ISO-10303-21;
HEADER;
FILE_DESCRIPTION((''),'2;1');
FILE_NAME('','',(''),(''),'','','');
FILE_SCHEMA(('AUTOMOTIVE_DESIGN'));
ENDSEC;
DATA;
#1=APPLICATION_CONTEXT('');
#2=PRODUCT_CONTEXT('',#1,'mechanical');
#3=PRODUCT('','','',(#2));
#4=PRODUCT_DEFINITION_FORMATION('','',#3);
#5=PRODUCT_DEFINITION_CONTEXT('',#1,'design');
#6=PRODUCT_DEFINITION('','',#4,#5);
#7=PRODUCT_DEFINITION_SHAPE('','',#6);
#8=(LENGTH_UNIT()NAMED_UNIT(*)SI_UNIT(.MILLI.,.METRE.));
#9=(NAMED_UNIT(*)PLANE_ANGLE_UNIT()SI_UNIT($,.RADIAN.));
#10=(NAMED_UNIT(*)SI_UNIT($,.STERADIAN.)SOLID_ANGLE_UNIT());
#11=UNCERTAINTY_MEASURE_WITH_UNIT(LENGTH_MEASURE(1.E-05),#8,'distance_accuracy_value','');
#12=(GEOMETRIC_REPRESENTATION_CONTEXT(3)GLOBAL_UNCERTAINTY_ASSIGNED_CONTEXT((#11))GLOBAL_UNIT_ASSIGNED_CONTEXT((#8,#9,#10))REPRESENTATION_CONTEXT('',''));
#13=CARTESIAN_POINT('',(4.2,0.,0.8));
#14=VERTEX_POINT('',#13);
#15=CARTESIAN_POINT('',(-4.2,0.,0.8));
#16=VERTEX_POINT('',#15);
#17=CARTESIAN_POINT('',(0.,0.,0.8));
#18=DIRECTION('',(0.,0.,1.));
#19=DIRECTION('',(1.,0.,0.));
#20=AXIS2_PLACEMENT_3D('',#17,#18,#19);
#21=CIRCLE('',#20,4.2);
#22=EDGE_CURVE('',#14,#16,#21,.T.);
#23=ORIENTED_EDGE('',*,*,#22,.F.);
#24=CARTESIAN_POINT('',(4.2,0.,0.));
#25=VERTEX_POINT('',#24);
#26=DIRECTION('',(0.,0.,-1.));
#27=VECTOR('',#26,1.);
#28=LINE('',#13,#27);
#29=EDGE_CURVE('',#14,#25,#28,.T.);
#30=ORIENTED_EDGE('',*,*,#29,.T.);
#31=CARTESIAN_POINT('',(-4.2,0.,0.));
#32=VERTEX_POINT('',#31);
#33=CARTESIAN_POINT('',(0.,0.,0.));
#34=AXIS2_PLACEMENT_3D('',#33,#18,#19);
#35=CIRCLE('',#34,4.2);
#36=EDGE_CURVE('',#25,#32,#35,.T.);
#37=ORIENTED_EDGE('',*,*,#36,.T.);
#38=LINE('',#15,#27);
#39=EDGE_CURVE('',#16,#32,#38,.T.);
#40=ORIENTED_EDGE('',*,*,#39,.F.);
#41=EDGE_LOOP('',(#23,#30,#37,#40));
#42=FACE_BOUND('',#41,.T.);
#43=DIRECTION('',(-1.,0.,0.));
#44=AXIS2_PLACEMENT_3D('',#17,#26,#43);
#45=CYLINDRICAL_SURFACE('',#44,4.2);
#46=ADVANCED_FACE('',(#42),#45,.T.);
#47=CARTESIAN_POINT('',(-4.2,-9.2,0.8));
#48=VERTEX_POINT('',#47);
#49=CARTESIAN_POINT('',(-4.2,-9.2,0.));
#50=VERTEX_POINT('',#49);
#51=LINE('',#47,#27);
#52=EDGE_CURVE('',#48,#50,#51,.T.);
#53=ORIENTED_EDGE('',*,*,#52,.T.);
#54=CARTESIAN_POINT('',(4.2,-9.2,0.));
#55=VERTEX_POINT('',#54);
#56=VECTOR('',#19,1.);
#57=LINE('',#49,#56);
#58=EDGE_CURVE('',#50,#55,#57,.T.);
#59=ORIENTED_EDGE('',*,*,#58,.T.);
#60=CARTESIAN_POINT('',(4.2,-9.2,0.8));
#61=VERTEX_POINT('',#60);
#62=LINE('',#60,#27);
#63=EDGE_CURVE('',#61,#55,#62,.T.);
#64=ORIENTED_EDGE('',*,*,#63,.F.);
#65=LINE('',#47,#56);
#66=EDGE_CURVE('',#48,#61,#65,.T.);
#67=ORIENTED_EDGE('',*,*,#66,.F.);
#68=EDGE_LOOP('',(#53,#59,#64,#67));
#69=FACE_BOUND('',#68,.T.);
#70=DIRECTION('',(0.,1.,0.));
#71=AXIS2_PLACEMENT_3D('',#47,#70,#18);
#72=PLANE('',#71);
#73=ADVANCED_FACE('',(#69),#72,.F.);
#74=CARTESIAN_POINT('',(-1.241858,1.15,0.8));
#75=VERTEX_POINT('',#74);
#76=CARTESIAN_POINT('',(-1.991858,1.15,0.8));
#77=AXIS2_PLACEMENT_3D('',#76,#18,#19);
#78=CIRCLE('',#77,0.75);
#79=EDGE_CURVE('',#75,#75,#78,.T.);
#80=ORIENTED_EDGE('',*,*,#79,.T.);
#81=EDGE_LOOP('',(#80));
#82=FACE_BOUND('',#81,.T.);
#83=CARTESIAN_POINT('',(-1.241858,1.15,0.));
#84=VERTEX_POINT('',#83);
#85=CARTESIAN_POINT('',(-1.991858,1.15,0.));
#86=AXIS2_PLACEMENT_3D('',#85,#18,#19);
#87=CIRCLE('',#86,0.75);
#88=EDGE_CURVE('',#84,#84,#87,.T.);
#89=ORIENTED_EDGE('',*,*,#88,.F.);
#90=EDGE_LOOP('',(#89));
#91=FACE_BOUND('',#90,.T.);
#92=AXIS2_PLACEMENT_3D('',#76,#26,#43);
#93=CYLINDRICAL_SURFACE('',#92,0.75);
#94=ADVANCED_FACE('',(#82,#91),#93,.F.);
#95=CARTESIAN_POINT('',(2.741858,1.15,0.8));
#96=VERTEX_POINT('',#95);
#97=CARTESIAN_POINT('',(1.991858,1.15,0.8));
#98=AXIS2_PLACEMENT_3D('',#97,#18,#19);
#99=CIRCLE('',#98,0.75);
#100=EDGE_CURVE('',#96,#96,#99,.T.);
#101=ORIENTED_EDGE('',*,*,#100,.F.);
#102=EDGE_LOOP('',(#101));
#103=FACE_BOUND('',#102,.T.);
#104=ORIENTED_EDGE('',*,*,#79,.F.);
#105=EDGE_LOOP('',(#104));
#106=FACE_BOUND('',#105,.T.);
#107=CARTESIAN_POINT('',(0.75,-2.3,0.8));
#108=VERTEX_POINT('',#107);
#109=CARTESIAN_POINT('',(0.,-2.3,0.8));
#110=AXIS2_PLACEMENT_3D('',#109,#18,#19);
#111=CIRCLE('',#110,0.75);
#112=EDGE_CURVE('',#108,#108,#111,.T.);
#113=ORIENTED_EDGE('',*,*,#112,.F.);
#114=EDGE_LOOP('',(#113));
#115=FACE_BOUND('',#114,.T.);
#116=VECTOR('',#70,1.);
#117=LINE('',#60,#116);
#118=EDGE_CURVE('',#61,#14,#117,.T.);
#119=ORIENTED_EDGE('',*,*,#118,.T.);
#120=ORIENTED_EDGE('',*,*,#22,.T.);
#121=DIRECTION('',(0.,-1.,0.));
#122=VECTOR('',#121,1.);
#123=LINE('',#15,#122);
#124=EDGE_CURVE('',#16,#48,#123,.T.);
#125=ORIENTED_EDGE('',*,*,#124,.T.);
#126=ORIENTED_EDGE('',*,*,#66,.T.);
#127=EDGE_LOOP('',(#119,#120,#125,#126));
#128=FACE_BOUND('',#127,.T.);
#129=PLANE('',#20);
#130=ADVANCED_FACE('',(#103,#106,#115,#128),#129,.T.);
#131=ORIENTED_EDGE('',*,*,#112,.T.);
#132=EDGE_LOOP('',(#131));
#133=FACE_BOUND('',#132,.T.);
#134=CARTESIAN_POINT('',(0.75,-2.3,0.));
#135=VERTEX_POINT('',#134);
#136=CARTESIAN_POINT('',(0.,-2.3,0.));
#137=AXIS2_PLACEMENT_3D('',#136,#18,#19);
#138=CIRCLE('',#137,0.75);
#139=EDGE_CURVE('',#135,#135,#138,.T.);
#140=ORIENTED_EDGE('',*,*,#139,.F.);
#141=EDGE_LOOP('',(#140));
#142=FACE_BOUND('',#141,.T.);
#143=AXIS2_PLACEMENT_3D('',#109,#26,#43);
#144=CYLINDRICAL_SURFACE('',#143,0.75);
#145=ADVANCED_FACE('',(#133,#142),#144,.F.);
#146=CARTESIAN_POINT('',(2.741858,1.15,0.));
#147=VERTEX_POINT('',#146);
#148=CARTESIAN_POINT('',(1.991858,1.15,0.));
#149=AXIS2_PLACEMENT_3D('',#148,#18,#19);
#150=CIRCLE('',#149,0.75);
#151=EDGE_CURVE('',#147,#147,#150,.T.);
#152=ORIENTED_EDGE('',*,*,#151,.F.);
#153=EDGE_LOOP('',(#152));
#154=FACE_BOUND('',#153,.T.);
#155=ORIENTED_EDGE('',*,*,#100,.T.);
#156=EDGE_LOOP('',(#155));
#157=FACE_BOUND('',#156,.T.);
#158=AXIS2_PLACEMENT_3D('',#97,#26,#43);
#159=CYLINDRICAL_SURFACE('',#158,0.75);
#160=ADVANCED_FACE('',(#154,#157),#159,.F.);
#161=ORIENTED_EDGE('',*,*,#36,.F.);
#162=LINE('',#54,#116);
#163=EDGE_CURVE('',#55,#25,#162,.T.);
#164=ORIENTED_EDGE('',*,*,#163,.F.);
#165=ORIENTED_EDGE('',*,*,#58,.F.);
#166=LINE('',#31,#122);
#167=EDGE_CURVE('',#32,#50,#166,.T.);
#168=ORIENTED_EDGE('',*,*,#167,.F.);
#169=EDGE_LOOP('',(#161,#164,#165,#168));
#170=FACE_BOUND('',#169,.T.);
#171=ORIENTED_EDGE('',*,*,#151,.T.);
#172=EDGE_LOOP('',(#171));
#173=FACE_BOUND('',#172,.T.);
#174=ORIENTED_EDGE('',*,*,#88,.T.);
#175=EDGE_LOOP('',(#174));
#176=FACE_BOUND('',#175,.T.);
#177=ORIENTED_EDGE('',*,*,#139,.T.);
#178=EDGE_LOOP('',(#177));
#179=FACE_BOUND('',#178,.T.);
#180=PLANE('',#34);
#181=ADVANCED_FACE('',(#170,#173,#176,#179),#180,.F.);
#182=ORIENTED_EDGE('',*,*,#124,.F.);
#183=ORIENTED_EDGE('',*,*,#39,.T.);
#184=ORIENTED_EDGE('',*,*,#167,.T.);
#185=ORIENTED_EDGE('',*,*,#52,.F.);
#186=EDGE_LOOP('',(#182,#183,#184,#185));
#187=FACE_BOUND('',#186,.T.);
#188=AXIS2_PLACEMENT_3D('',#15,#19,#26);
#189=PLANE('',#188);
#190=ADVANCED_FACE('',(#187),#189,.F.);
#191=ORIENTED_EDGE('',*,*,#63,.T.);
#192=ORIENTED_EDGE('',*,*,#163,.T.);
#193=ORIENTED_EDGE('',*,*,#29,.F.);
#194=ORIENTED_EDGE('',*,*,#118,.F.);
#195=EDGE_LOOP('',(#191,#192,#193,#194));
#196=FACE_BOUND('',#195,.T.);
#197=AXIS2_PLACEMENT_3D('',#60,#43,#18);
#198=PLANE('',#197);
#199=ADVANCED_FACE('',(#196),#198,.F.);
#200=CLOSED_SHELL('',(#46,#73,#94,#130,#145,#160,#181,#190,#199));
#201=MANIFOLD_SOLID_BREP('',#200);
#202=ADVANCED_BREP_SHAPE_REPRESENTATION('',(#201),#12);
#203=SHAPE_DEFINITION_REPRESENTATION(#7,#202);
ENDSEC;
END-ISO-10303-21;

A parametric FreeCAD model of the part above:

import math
import FreeCAD as App
import Part
import Sketcher
from FreeCAD import Vector

doc = App.newDocument("Part")
params = doc.addObject("Spreadsheet::Sheet", "Params")
for row, (alias, value) in enumerate([
    ("sketch1_diameter", "1.5 mm"),
    ("sketch1_radius", "4.2 mm"),
    ("sketch1_height", "9.2 mm"),
    ("pad1_length", "0.8 mm"),
], start=1):
    params.set(f"A{row}", alias)
    params.set(f"B{row}", "=" + value)
    params.setAlias(f"B{row}", alias)

body = doc.addObject("PartDesign::Body", "Body")

# Sketch on XY plane
sketch1 = body.newObject("Sketcher::SketchObject", "Sketch")
sketch1.AttachmentSupport = (doc.getObject("XY_Plane"), [""])
sketch1.MapMode = "FlatFace"
sketch1.addGeometry(Part.LineSegment(Vector(-4.2, 0, 0), Vector(-4.2, -9.2, 0)), False)
sketch1.addGeometry(Part.LineSegment(Vector(-4.2, -9.2, 0), Vector(4.2, -9.2, 0)), False)
sketch1.addGeometry(Part.LineSegment(Vector(4.2, -9.2, 0), Vector(4.2, 0, 0)), False)
sketch1.addGeometry(Part.ArcOfCircle(Part.Circle(Vector(0, 0, 0), Vector(0, 0, 1), 4.2), math.radians(0), math.radians(180)), False)
sketch1.addGeometry(Part.Circle(Vector(0, -2.3, 0), Vector(0, 0, 1), 0.8), False)
sketch1.addGeometry(Part.Circle(Vector(-2, 1.1, 0), Vector(0, 0, 1), 0.8), False)
sketch1.addGeometry(Part.Circle(Vector(2, 1.1, 0), Vector(0, 0, 1), 0.8), False)
sketch1.addConstraint(Sketcher.Constraint("Coincident", 0, 2, 1, 1))
sketch1.addConstraint(Sketcher.Constraint("Coincident", 1, 2, 2, 1))
sketch1.addConstraint(Sketcher.Constraint("Tangent", 2, 2, 3, 1))
sketch1.addConstraint(Sketcher.Constraint("Tangent", 3, 2, 0, 1))
sketch1.addConstraint(Sketcher.Constraint("Vertical", 0))
sketch1.addConstraint(Sketcher.Constraint("Horizontal", 1))
sketch1.addConstraint(Sketcher.Constraint("Vertical", 2))
sketch1.addConstraint(Sketcher.Constraint("Coincident", 3, 3, -1, 1))
sketch1.addConstraint(Sketcher.Constraint("Equal", 4, 5))
sketch1.addConstraint(Sketcher.Constraint("Equal", 5, 6))
sketch1.addConstraint(Sketcher.Constraint("Symmetric", 5, 3, 6, 3, -2))
sketch1.addConstraint(Sketcher.Constraint("PointOnObject", 4, 3, -2))
sketch1.addConstraint(Sketcher.Constraint("Diameter", 4, 1.5))
sketch1.addConstraint(Sketcher.Constraint("Radius", 3, 4.2))
sketch1.addConstraint(Sketcher.Constraint("DistanceY", 0, 2, 0, 1, 9.2))
sketch1.addConstraint(Sketcher.Constraint("DistanceY", 4, 3, -1, 1, 2.3))
sketch1.addConstraint(Sketcher.Constraint("DistanceY", -1, 1, 5, 3, 1.15))
sketch1.addConstraint(Sketcher.Constraint("DistanceX", 5, 3, -1, 1, 1.991858))
sketch1.setExpression("Constraints[12]", "Params.sketch1_diameter")
sketch1.setExpression("Constraints[13]", "Params.sketch1_radius")
sketch1.setExpression("Constraints[14]", "Params.sketch1_height")
pad1 = body.newObject("PartDesign::Pad", "Pad")
pad1.Profile = sketch1
pad1.setExpression("Length", "Params.pad1_length")

doc.recompute()
